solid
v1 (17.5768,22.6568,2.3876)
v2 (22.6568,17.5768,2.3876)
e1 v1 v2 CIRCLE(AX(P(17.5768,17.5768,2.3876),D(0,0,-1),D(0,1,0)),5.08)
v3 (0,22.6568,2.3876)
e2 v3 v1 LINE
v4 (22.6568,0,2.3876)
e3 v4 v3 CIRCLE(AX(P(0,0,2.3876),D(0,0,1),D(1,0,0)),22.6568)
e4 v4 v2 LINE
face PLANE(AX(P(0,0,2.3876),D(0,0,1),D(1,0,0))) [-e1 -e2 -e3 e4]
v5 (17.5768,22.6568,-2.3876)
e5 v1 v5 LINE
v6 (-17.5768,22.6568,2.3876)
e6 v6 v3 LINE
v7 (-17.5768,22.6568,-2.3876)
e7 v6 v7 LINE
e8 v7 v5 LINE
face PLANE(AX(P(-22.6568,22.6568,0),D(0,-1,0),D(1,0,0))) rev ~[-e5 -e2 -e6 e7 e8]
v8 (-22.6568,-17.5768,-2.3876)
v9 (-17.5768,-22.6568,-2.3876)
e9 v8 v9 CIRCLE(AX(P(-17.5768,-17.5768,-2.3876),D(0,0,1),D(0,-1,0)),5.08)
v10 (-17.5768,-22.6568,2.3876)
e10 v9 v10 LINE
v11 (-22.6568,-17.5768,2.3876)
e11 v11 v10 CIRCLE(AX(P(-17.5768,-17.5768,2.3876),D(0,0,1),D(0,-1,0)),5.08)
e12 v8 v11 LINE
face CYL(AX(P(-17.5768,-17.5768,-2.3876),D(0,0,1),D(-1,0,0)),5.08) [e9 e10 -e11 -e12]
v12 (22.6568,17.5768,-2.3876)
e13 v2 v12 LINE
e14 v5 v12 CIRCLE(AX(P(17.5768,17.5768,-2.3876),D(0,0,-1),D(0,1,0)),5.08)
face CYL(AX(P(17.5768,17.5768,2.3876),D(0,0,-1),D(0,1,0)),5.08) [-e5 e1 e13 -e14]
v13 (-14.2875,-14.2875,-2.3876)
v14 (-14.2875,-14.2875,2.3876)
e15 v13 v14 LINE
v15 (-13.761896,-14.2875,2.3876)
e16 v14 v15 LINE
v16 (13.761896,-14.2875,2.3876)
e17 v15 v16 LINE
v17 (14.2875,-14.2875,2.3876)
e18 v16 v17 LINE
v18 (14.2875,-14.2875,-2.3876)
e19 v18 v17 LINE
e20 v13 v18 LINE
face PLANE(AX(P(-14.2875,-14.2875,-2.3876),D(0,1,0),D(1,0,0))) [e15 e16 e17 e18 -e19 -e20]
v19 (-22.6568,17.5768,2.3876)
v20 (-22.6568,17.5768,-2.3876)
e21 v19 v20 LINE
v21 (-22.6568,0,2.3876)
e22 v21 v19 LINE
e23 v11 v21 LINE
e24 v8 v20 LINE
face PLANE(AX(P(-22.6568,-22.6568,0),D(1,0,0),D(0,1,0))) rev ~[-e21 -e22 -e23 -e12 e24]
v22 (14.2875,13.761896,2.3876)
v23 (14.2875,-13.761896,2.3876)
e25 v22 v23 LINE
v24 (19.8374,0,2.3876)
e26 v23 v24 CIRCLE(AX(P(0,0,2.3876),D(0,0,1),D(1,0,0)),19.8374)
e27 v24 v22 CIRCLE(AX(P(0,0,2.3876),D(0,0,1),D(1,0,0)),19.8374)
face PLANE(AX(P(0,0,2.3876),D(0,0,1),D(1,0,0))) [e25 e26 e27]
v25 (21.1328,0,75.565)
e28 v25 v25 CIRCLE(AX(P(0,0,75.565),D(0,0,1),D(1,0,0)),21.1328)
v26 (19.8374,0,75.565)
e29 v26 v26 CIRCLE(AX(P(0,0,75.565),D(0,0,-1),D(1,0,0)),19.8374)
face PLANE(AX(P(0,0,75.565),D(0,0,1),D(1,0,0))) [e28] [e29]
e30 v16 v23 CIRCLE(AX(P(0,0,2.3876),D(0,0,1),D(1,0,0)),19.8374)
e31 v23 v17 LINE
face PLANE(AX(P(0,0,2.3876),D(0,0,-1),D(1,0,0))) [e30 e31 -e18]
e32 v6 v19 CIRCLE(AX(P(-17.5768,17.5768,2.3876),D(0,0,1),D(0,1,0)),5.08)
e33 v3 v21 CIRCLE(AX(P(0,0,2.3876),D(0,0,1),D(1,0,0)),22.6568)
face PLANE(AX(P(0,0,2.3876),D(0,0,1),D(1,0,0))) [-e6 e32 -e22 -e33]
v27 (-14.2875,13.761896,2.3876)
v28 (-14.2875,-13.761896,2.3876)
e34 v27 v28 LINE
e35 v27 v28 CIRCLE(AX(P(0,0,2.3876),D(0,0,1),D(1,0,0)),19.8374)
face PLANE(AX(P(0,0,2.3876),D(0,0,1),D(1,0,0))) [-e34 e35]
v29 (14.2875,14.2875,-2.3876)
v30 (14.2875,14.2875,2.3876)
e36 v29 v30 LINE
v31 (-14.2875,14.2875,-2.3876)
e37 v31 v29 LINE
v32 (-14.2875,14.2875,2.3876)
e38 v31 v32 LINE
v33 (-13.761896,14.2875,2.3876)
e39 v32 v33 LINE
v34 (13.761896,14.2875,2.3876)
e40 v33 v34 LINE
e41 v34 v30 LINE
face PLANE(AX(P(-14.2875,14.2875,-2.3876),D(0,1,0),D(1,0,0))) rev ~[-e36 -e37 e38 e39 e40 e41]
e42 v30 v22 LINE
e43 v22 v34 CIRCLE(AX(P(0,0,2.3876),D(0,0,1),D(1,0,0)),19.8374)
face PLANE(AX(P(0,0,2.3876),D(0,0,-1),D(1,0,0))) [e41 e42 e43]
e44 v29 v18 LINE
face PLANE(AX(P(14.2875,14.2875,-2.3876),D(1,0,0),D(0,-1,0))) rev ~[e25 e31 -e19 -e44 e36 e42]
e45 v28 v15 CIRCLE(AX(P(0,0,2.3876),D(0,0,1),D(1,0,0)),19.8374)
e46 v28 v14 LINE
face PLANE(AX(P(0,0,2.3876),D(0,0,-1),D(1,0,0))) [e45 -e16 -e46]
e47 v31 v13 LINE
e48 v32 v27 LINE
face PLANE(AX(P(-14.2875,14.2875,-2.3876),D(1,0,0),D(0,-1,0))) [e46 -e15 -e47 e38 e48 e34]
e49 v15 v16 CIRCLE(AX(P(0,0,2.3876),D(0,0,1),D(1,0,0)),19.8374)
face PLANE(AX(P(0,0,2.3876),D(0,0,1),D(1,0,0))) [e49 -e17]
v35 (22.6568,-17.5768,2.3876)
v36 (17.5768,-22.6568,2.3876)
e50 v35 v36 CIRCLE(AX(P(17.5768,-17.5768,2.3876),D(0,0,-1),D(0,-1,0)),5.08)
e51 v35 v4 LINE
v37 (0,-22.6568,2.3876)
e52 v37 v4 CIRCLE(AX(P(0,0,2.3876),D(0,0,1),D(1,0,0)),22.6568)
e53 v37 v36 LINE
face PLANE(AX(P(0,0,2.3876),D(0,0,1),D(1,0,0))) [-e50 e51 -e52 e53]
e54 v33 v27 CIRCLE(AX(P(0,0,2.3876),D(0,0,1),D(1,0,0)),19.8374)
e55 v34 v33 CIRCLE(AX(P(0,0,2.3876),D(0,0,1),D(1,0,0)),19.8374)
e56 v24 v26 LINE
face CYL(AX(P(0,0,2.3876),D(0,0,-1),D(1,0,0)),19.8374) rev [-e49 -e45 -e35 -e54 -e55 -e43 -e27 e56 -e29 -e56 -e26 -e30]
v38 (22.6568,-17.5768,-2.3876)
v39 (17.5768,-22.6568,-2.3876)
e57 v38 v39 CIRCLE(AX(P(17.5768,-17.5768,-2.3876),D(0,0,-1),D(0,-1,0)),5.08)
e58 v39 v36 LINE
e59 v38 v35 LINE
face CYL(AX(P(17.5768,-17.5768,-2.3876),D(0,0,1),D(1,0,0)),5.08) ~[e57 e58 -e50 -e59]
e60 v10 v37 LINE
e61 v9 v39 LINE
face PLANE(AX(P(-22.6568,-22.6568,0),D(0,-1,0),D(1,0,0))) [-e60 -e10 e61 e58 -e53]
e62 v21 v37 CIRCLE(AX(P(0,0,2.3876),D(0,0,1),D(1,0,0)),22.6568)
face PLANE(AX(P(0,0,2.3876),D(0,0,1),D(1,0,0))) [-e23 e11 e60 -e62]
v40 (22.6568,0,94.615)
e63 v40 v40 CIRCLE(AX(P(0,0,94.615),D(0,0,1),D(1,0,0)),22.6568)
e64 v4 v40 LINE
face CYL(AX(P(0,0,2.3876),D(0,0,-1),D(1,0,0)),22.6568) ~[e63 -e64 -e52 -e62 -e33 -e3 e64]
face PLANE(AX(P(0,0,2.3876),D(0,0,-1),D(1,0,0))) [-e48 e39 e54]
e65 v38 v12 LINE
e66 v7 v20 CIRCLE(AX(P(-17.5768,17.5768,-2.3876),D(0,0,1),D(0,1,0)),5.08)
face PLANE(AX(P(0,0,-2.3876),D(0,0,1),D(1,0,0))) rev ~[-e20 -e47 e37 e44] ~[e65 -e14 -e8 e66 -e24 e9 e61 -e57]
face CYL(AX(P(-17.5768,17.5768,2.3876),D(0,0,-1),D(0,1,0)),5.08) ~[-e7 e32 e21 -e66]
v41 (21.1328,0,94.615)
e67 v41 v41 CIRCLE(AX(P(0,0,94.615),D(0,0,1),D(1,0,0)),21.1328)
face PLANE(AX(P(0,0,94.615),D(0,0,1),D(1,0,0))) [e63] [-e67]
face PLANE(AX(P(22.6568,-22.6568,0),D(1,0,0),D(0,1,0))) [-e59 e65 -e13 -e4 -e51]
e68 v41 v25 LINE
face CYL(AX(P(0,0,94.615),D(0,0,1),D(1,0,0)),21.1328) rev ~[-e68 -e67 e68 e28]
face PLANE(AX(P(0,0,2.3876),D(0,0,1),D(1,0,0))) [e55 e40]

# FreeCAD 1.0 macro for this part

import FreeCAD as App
import Part
import Sketcher
Q = App.Units.Quantity


def edges_at(feature, points):
    """Names of the edges that pass closest to the given points."""
    edges = feature.Shape.Edges
    near = lambda p: min(range(len(edges)), key=lambda i: edges[i].distToShape(Part.Vertex(*p))[0])
    return sorted({f"Edge{near(p) + 1}" for p in points})


def add_polygon(sketch, points):
    """Adds a closed chain of lines whose ends are joined by coincident constraints."""
    first, n = sketch.GeometryCount, len(points)
    for a, b in zip(points, points[1:] + points[:1]):
        sketch.addGeometry(Part.LineSegment(App.Vector(*a, 0), App.Vector(*b, 0)), False)
    for i in range(n):
        sketch.addConstraint(Sketcher.Constraint("Coincident", first + i, 2, first + (i + 1) % n, 1))

doc = App.newDocument("Part")
body = doc.addObject("PartDesign::Body", "Body")

# Sketch on XY plane
sketch1 = body.newObject("Sketcher::SketchObject", "Sketch")
sketch1.AttachmentSupport = (doc.getObject("XY_Plane"), [""])
sketch1.MapMode = "FlatFace"
add_polygon(sketch1, [(-22.6568, 22.6568), (-22.6568, -22.6568), (22.6568, -22.6568), (22.6568, 22.6568)])  # lines 0-3
sketch1.addConstraint([
    Sketcher.Constraint("Vertical", 0),
    Sketcher.Constraint("Horizontal", 1),
    Sketcher.Constraint("Vertical", 2),
    Sketcher.Constraint("Horizontal", 3),
    Sketcher.Constraint("Symmetric", 0, 2, 2, 2, -1, 1),
    Sketcher.Constraint("Equal", 3, 0),
    Sketcher.Constraint("DistanceX", 1, 1, 1, 2, Q("1.784 in")),
])
pad1 = body.newObject("PartDesign::Pad", "Pad")
pad1.Profile = sketch1
pad1.Length = Q("0.188 in")
pad1.Midplane = True

# Sketch on XY plane
sketch2 = body.newObject("Sketcher::SketchObject", "Sketch001")
sketch2.AttachmentSupport = (doc.getObject("XY_Plane"), [""])
sketch2.MapMode = "FlatFace"
sketch2.AttachmentOffset = App.Placement(App.Vector(0, 0, 0.094 * 25.4), App.Rotation())
sketch2.addGeometry([
    Part.Circle(App.Vector(0, 0, 0), App.Vector(0, 0, 1), 22.6568),
    Part.Circle(App.Vector(0, 0, 0), App.Vector(0, 0, 1), 19.8374),
], False)
sketch2.addConstraint([
    Sketcher.Constraint("Coincident", 0, 3, -1, 1),
    Sketcher.Constraint("Coincident", 1, 3, -1, 1),
    Sketcher.Constraint("Diameter", 0, Q("1.784 in")),
    Sketcher.Constraint("Diameter", 1, Q("1.562 in")),
])
pad2 = body.newObject("PartDesign::Pad", "Pad001")
pad2.Profile = sketch2
pad2.Length = Q("3.631 in")

# Sketch on XY plane
sketch3 = body.newObject("Sketcher::SketchObject", "Sketch002")
sketch3.AttachmentSupport = (doc.getObject("XY_Plane"), [""])
sketch3.MapMode = "FlatFace"
sketch3.AttachmentOffset = App.Placement(App.Vector(0, 0, -0.094 * 25.4), App.Rotation())
add_polygon(sketch3, [(-14.2875, -14.2875), (-14.2875, 14.2875), (14.2875, 14.2875), (14.2875, -14.2875)])  # lines 0-3
sketch3.addConstraint([
    Sketcher.Constraint("Vertical", 0),
    Sketcher.Constraint("Horizontal", 1),
    Sketcher.Constraint("Vertical", 2),
    Sketcher.Constraint("Horizontal", 3),
    Sketcher.Constraint("Symmetric", 0, 2, 2, 2, -1, 1),
    Sketcher.Constraint("Equal", 3, 0),
    Sketcher.Constraint("DistanceX", 1, 1, 1, 2, Q("1.125 in")),
])
pocket1 = body.newObject("PartDesign::Pocket", "Pocket")
pocket1.Profile = sketch3
pocket1.Length = Q("0.188 in")
pocket1.Reversed = True

# Sketch on XY plane
sketch4 = body.newObject("Sketcher::SketchObject", "Sketch003")
sketch4.AttachmentSupport = (doc.getObject("XY_Plane"), [""])
sketch4.MapMode = "FlatFace"
sketch4.AttachmentOffset = App.Placement(App.Vector(0, 0, 3.725 * 25.4), App.Rotation())
sketch4.addGeometry(Part.Circle(App.Vector(0, 0, 0), App.Vector(0, 0, 1), 21.1328), False)
sketch4.addConstraint([
    Sketcher.Constraint("Coincident", 0, 3, -1, 1),
    Sketcher.Constraint("Diameter", 0, Q("1.664 in")),
])
pocket2 = body.newObject("PartDesign::Pocket", "Pocket001")
pocket2.Profile = sketch4
pocket2.Length = Q("0.75 in")
doc.recompute()

fillet = body.newObject("PartDesign::Fillet", "Fillet")
fillet.Base = (pocket2, edges_at(pocket2, [
    (-22.657, -22.657, 0),
    (-22.657, 22.657, 0),
    (22.657, -22.657, 0),
    (22.657, 22.657, 0),
]))
fillet.Radius = Q("0.2 in")

doc.recompute()
